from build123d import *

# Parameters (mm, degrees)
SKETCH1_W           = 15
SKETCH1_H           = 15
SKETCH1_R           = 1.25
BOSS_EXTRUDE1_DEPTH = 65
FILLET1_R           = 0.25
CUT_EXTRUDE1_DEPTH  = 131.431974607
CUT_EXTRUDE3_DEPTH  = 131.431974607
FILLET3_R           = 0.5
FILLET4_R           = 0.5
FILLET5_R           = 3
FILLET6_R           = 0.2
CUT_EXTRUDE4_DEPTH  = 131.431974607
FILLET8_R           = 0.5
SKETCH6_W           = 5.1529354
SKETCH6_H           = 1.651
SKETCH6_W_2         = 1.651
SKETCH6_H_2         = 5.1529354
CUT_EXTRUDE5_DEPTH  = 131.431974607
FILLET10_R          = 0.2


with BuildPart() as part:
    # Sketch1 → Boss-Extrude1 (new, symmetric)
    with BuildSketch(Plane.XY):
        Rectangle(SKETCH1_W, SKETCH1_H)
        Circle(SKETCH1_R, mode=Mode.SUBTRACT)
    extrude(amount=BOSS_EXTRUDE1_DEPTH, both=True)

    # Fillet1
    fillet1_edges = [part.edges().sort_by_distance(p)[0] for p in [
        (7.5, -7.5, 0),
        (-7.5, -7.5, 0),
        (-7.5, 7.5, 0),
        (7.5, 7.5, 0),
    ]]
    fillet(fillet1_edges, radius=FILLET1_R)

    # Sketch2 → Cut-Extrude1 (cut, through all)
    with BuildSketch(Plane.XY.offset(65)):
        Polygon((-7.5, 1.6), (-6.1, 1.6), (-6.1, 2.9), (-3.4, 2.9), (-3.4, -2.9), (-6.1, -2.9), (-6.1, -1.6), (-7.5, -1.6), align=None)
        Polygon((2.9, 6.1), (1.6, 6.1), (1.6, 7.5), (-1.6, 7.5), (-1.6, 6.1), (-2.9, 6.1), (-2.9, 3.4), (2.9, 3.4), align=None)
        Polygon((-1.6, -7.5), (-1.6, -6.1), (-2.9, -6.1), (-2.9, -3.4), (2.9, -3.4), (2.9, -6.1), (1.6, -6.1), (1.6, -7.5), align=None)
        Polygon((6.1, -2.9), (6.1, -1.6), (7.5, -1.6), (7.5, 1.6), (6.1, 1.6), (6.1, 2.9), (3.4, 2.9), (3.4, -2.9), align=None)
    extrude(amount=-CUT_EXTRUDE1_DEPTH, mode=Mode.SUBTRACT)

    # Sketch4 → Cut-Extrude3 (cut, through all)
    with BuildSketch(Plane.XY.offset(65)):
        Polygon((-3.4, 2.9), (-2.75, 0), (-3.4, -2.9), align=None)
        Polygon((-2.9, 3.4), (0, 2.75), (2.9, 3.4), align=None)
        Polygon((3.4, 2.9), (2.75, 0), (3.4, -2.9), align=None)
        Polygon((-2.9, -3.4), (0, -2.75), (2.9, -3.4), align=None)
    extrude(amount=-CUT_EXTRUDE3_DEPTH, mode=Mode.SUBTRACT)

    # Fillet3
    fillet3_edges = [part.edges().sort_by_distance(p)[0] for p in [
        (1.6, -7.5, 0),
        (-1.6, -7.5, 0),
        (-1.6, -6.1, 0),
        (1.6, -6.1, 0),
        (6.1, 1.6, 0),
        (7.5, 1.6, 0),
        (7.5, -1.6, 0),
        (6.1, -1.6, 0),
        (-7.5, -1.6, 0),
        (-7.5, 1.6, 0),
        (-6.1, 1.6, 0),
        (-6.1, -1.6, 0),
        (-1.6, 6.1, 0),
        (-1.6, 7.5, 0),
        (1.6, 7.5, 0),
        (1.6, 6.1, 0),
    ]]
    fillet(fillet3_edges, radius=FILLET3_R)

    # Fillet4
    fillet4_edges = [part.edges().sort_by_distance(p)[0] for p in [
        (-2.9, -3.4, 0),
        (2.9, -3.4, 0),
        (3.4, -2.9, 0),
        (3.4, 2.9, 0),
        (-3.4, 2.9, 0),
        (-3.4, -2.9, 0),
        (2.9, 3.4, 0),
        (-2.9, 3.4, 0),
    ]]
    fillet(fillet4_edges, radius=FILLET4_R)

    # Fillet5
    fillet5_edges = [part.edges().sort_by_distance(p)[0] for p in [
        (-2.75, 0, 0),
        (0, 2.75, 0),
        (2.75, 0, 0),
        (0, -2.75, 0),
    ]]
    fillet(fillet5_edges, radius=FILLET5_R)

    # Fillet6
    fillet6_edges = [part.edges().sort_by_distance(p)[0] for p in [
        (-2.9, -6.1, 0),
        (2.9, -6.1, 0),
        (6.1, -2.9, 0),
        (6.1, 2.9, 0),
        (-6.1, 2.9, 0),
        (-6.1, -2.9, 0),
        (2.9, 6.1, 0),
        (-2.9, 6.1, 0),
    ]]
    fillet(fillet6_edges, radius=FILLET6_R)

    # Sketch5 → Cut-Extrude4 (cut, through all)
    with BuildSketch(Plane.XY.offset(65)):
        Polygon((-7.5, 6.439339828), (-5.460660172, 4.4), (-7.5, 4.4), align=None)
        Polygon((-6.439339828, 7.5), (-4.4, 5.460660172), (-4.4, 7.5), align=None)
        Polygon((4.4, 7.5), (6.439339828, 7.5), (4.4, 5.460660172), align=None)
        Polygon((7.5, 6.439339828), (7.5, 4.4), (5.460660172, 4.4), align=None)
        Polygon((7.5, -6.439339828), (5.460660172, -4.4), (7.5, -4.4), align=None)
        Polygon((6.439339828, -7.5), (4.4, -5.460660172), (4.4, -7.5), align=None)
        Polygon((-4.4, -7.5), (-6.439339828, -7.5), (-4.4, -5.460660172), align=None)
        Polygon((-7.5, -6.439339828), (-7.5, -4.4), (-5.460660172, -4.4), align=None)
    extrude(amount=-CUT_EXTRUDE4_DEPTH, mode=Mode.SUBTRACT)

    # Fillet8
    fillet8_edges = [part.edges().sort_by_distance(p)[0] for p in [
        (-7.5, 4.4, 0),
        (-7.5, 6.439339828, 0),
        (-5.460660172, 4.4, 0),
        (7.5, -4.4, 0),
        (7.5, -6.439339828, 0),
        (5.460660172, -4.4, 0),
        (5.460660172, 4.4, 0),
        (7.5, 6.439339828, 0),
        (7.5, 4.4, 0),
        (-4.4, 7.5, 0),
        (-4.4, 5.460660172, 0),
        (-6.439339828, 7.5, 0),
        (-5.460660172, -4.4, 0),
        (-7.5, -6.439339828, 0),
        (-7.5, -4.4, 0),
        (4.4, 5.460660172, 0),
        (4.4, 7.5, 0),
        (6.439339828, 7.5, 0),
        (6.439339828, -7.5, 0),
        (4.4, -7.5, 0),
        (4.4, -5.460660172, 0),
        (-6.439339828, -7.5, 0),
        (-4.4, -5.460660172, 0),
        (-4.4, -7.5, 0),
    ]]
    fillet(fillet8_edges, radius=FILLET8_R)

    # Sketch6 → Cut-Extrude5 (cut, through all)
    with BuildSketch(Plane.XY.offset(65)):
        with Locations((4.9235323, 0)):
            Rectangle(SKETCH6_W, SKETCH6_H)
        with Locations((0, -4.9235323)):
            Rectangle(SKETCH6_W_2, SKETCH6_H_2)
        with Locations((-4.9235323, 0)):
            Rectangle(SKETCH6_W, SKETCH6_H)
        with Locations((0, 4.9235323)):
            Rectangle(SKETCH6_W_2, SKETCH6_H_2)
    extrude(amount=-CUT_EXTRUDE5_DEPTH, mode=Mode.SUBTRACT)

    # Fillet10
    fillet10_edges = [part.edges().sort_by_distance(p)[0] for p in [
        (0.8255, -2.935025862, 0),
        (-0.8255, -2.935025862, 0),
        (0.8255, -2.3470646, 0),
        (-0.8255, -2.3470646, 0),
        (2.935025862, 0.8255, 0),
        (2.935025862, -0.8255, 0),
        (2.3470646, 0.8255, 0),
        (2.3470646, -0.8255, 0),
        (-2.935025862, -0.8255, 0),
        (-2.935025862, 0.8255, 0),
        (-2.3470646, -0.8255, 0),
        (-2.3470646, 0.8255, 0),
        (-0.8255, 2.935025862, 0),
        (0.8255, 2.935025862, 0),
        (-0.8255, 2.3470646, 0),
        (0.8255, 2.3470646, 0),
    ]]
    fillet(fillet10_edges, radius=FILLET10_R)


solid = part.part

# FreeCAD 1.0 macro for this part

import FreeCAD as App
import Part
import Sketcher


def edges_at(feature, points):
    """Names of the edges that pass closest to the given points."""
    edges = feature.Shape.Edges
    near = lambda p: min(range(len(edges)), key=lambda i: edges[i].distToShape(Part.Vertex(*p))[0])
    return sorted({f"Edge{near(p) + 1}" for p in points})


def add_polygon(sketch, points):
    """Adds a closed chain of lines whose ends are joined by coincident constraints."""
    first, n = sketch.GeometryCount, len(points)
    for a, b in zip(points, points[1:] + points[:1]):
        sketch.addGeometry(Part.LineSegment(App.Vector(*a, 0), App.Vector(*b, 0)), False)
    for i in range(n):
        sketch.addConstraint(Sketcher.Constraint("Coincident", first + i, 2, first + (i + 1) % n, 1))

doc = App.newDocument("Part")
body = doc.addObject("PartDesign::Body", "Body")

# Sketch on XY plane
sketch1 = doc.addObject("Sketcher::SketchObject", "Sketch")
body.addObject(sketch1)
sketch1.AttachmentSupport = (doc.XY_Plane, [""])
sketch1.MapMode = "FlatFace"
add_polygon(sketch1, [(-7.5, 7.5), (-7.5, -7.5), (7.5, -7.5), (7.5, 7.5)])  # lines 0-3
sketch1.addGeometry(Part.Circle(App.Vector(0, 0, 0), App.Vector(0, 0, 1), 1.25), False)  # 4
sketch1.addConstraint(Sketcher.Constraint("Vertical", 0))
sketch1.addConstraint(Sketcher.Constraint("Horizontal", 1))
sketch1.addConstraint(Sketcher.Constraint("Vertical", 2))
sketch1.addConstraint(Sketcher.Constraint("Horizontal", 3))
sketch1.addConstraint(Sketcher.Constraint("Coincident", 4, 3, -1, 1))
sketch1.addConstraint(Sketcher.Constraint("Symmetric", 0, 2, 2, 2, -1, 1))
sketch1.addConstraint(Sketcher.Constraint("Equal", 3, 0))
sketch1.addConstraint(Sketcher.Constraint("Diameter", 4, 2.5))
sketch1.addConstraint(Sketcher.Constraint("DistanceX", 1, 1, 1, 2, 15.0))
pad1 = doc.addObject("PartDesign::Pad", "Pad")
body.addObject(pad1)
pad1.Profile = sketch1
pad1.Length = 130
pad1.Midplane = True
doc.recompute()

fillet = doc.addObject("PartDesign::Fillet", "Fillet")
body.addObject(fillet)
fillet.Base = (pad1, edges_at(pad1, [
    (7.5, -7.5, 0),
    (-7.5, -7.5, 0),
    (-7.5, 7.5, 0),
    (7.5, 7.5, 0),
]))
fillet.Radius = 0.25

# Sketch on XY plane
sketch2 = doc.addObject("Sketcher::SketchObject", "Sketch001")
body.addObject(sketch2)
sketch2.AttachmentSupport = (doc.XY_Plane, [""])
sketch2.MapMode = "FlatFace"
sketch2.AttachmentOffset = App.Placement(App.Vector(0, 0, 65), App.Rotation())
add_polygon(sketch2, [(-6.1, 1.6), (-7.5, 1.6), (-7.5, -1.6), (-6.1, -1.6), (-6.1, -2.9), (-3.4, -2.9), (-3.4, 2.9), (-6.1, 2.9)])  # lines 0-7
add_polygon(sketch2, [(2.9, 6.1), (1.6, 6.1), (1.6, 7.5), (-1.6, 7.5), (-1.6, 6.1), (-2.9, 6.1), (-2.9, 3.4), (2.9, 3.4)])  # lines 8-15
add_polygon(sketch2, [(-1.6, -6.1), (-1.6, -7.5), (1.6, -7.5), (1.6, -6.1), (2.9, -6.1), (2.9, -3.4), (-2.9, -3.4), (-2.9, -6.1)])  # lines 16-23
add_polygon(sketch2, [(6.1, -2.9), (6.1, -1.6), (7.5, -1.6), (7.5, 1.6), (6.1, 1.6), (6.1, 2.9), (3.4, 2.9), (3.4, -2.9)])  # lines 24-31
sketch2.addConstraint(Sketcher.Constraint("Horizontal", 0))
sketch2.addConstraint(Sketcher.Constraint("Vertical", 1))
sketch2.addConstraint(Sketcher.Constraint("Horizontal", 2))
sketch2.addConstraint(Sketcher.Constraint("Vertical", 3))
sketch2.addConstraint(Sketcher.Constraint("Horizontal", 4))
sketch2.addConstraint(Sketcher.Constraint("Vertical", 5))
sketch2.addConstraint(Sketcher.Constraint("Horizontal", 6))
sketch2.addConstraint(Sketcher.Constraint("Vertical", 7))
sketch2.addConstraint(Sketcher.Constraint("Horizontal", 8))
sketch2.addConstraint(Sketcher.Constraint("Vertical", 9))
sketch2.addConstraint(Sketcher.Constraint("Horizontal", 10))
sketch2.addConstraint(Sketcher.Constraint("Vertical", 11))
sketch2.addConstraint(Sketcher.Constraint("Horizontal", 12))
sketch2.addConstraint(Sketcher.Constraint("Vertical", 13))
sketch2.addConstraint(Sketcher.Constraint("Horizontal", 14))
sketch2.addConstraint(Sketcher.Constraint("Vertical", 15))
sketch2.addConstraint(Sketcher.Constraint("Vertical", 16))
sketch2.addConstraint(Sketcher.Constraint("Horizontal", 17))
sketch2.addConstraint(Sketcher.Constraint("Vertical", 18))
sketch2.addConstraint(Sketcher.Constraint("Horizontal", 19))
sketch2.addConstraint(Sketcher.Constraint("Vertical", 20))
sketch2.addConstraint(Sketcher.Constraint("Horizontal", 21))
sketch2.addConstraint(Sketcher.Constraint("Vertical", 22))
sketch2.addConstraint(Sketcher.Constraint("Horizontal", 23))
sketch2.addConstraint(Sketcher.Constraint("Vertical", 24))
sketch2.addConstraint(Sketcher.Constraint("Horizontal", 25))
sketch2.addConstraint(Sketcher.Constraint("Vertical", 26))
sketch2.addConstraint(Sketcher.Constraint("Horizontal", 27))
sketch2.addConstraint(Sketcher.Constraint("Vertical", 28))
sketch2.addConstraint(Sketcher.Constraint("Horizontal", 29))
sketch2.addConstraint(Sketcher.Constraint("Vertical", 30))
sketch2.addConstraint(Sketcher.Constraint("Horizontal", 31))
sketch2.addConstraint(Sketcher.Constraint("Symmetric", 9, 2, 16, 2, -1, 1))
sketch2.addConstraint(Sketcher.Constraint("Symmetric", 11, 2, 18, 2, -1, 1))
sketch2.addConstraint(Sketcher.Constraint("Symmetric", 13, 2, 20, 2, -1, 1))
sketch2.addConstraint(Sketcher.Constraint("Symmetric", 15, 2, 22, 2, -1, 1))
sketch2.addConstraint(Sketcher.Constraint("Symmetric", 7, 2, 24, 2, -1, 1))
sketch2.addConstraint(Sketcher.Constraint("Symmetric", 1, 2, 26, 2, -1, 1))
sketch2.addConstraint(Sketcher.Constraint("Symmetric", 3, 2, 28, 2, -1, 1))
sketch2.addConstraint(Sketcher.Constraint("Symmetric", 5, 2, 30, 2, -1, 1))
sketch2.addConstraint(Sketcher.Constraint("Symmetric", 8, 2, 11, 2, -2))
sketch2.addConstraint(Sketcher.Constraint("Symmetric", 2, 2, 24, 2, -2))
sketch2.addConstraint(Sketcher.Constraint("Horizontal", 6, 2, 28, 2))
sketch2.addConstraint(Sketcher.Constraint("Vertical", 15, 2, 19, 2))
sketch2.addConstraint(Sketcher.Constraint("Equal", 17, 1))
sketch2.addConstraint(Sketcher.Constraint("Equal", 23, 3))
sketch2.addConstraint(Sketcher.Constraint("Equal", 27, 9))
sketch2.addConstraint(Sketcher.Constraint("Equal", 31, 13))
sketch2.addConstraint(Sketcher.Constraint("DistanceX", 0, 2, 0, 1, 1.4))
sketch2.addConstraint(Sketcher.Constraint("DistanceX", 4, 1, 4, 2, 2.7))
sketch2.addConstraint(Sketcher.Constraint("DistanceX", 8, 2, 8, 1, 1.3))
sketch2.addConstraint(Sketcher.Constraint("DistanceX", 10, 2, 10, 1, 3.2))
sketch2.addConstraint(Sketcher.Constraint("DistanceX", 5, 2, 8, 2, 5.0))
sketch2.addConstraint(Sketcher.Constraint("DistanceY", 4, 2, 8, 2, 9.0))
pocket1 = doc.addObject("PartDesign::Pocket", "Pocket")
body.addObject(pocket1)
pocket1.Profile = sketch2
pocket1.Type = "ThroughAll"

# Sketch on XY plane
sketch3 = doc.addObject("Sketcher::SketchObject", "Sketch002")
body.addObject(sketch3)
sketch3.AttachmentSupport = (doc.XY_Plane, [""])
sketch3.MapMode = "FlatFace"
sketch3.AttachmentOffset = App.Placement(App.Vector(0, 0, 65), App.Rotation())
add_polygon(sketch3, [(-2.75, 0), (-3.4, 2.9), (-3.4, -2.9)])  # lines 0-2
add_polygon(sketch3, [(-2.9, 3.4), (0, 2.75), (2.9, 3.4)])  # lines 3-5
add_polygon(sketch3, [(3.4, 2.9), (2.75, 0), (3.4, -2.9)])  # lines 6-8
add_polygon(sketch3, [(0, -2.75), (-2.9, -3.4), (2.9, -3.4)])  # lines 9-11
sketch3.addConstraint(Sketcher.Constraint("Vertical", 1))
sketch3.addConstraint(Sketcher.Constraint("Horizontal", 5))
sketch3.addConstraint(Sketcher.Constraint("Vertical", 8))
sketch3.addConstraint(Sketcher.Constraint("Horizontal", 10))
sketch3.addConstraint(Sketcher.Constraint("Symmetric", 2, 2, 6, 2, -1, 1))
sketch3.addConstraint(Sketcher.Constraint("Symmetric", 0, 2, 7, 2, -1, 1))
sketch3.addConstraint(Sketcher.Constraint("Symmetric", 4, 2, 9, 2, -1, 1))
sketch3.addConstraint(Sketcher.Constraint("Symmetric", 3, 2, 11, 2, -1, 1))
sketch3.addConstraint(Sketcher.Constraint("PointOnObject", 2, 2, -1))
sketch3.addConstraint(Sketcher.Constraint("PointOnObject", 3, 2, -2))
sketch3.addConstraint(Sketcher.Constraint("Perpendicular", 2, 3))
sketch3.addConstraint(Sketcher.Constraint("Perpendicular", 0, 4))
sketch3.addConstraint(Sketcher.Constraint("Perpendicular", 3, 6))
sketch3.addConstraint(Sketcher.Constraint("Perpendicular", 6, 11))
sketch3.addConstraint(Sketcher.Constraint("Horizontal", 1, 2, 7, 2))
sketch3.addConstraint(Sketcher.Constraint("Equal", 10, 1))
sketch3.addConstraint(Sketcher.Constraint("DistanceX", 5, 2, 5, 1, 5.8))
sketch3.addConstraint(Sketcher.Constraint("DistanceX", 0, 2, -1, 1, 3.4))
sketch3.addConstraint(Sketcher.Constraint("DistanceY", -1, 1, 4, 2, 3.4))
sketch3.addConstraint(Sketcher.Constraint("DistanceX", 2, 2, 6, 2, 5.5))
pocket2 = doc.addObject("PartDesign::Pocket", "Pocket001")
body.addObject(pocket2)
pocket2.Profile = sketch3
pocket2.Type = "ThroughAll"
doc.recompute()

fillet2 = doc.addObject("PartDesign::Fillet", "Fillet001")
body.addObject(fillet2)
fillet2.Base = (pocket2, edges_at(pocket2, [
    (1.6, -7.5, 0),
    (-1.6, -7.5, 0),
    (-1.6, -6.1, 0),
    (1.6, -6.1, 0),
    (6.1, 1.6, 0),
    (7.5, 1.6, 0),
    (7.5, -1.6, 0),
    (6.1, -1.6, 0),
    (-7.5, -1.6, 0),
    (-7.5, 1.6, 0),
    (-6.1, 1.6, 0),
    (-6.1, -1.6, 0),
    (-1.6, 6.1, 0),
    (-1.6, 7.5, 0),
    (1.6, 7.5, 0),
    (1.6, 6.1, 0),
]))
fillet2.Radius = 0.5
doc.recompute()

fillet3 = doc.addObject("PartDesign::Fillet", "Fillet002")
body.addObject(fillet3)
fillet3.Base = (fillet2, edges_at(fillet2, [
    (-2.9, -3.4, 0),
    (2.9, -3.4, 0),
    (3.4, -2.9, 0),
    (3.4, 2.9, 0),
    (-3.4, 2.9, 0),
    (-3.4, -2.9, 0),
    (2.9, 3.4, 0),
    (-2.9, 3.4, 0),
]))
fillet3.Radius = 0.5
doc.recompute()

fillet4 = doc.addObject("PartDesign::Fillet", "Fillet003")
body.addObject(fillet4)
fillet4.Base = (fillet3, edges_at(fillet3, [
    (-2.75, 0, 0),
    (0, 2.75, 0),
    (2.75, 0, 0),
    (0, -2.75, 0),
]))
fillet4.Radius = 3
doc.recompute()

fillet5 = doc.addObject("PartDesign::Fillet", "Fillet004")
body.addObject(fillet5)
fillet5.Base = (fillet4, edges_at(fillet4, [
    (-2.9, -6.1, 0),
    (2.9, -6.1, 0),
    (6.1, -2.9, 0),
    (6.1, 2.9, 0),
    (-6.1, 2.9, 0),
    (-6.1, -2.9, 0),
    (2.9, 6.1, 0),
    (-2.9, 6.1, 0),
]))
fillet5.Radius = 0.2

# Sketch on XY plane
sketch4 = doc.addObject("Sketcher::SketchObject", "Sketch003")
body.addObject(sketch4)
sketch4.AttachmentSupport = (doc.XY_Plane, [""])
sketch4.MapMode = "FlatFace"
sketch4.AttachmentOffset = App.Placement(App.Vector(0, 0, 65), App.Rotation())
add_polygon(sketch4, [(-5.46066, 4.4), (-7.5, 6.43934), (-7.5, 4.4)])  # lines 0-2
add_polygon(sketch4, [(-6.43934, 7.5), (-4.4, 5.46066), (-4.4, 7.5)])  # lines 3-5
add_polygon(sketch4, [(6.43934, 7.5), (4.4, 7.5), (4.4, 5.46066)])  # lines 6-8
add_polygon(sketch4, [(7.5, 4.4), (7.5, 6.43934), (5.46066, 4.4)])  # lines 9-11
add_polygon(sketch4, [(5.46066, -4.4), (7.5, -6.43934), (7.5, -4.4)])  # lines 12-14
add_polygon(sketch4, [(6.43934, -7.5), (4.4, -5.46066), (4.4, -7.5)])  # lines 15-17
add_polygon(sketch4, [(-6.43934, -7.5), (-4.4, -7.5), (-4.4, -5.46066)])  # lines 18-20
add_polygon(sketch4, [(-7.5, -4.4), (-7.5, -6.43934), (-5.46066, -4.4)])  # lines 21-23
sketch4.addConstraint(Sketcher.Constraint("Vertical", 1))
sketch4.addConstraint(Sketcher.Constraint("Horizontal", 2))
sketch4.addConstraint(Sketcher.Constraint("Vertical", 4))
sketch4.addConstraint(Sketcher.Constraint("Horizontal", 5))
sketch4.addConstraint(Sketcher.Constraint("Horizontal", 6))
sketch4.addConstraint(Sketcher.Constraint("Vertical", 7))
sketch4.addConstraint(Sketcher.Constraint("Vertical", 9))
sketch4.addConstraint(Sketcher.Constraint("Horizontal", 11))
sketch4.addConstraint(Sketcher.Constraint("Vertical", 13))
sketch4.addConstraint(Sketcher.Constraint("Horizontal", 14))
sketch4.addConstraint(Sketcher.Constraint("Vertical", 16))
sketch4.addConstraint(Sketcher.Constraint("Horizontal", 17))
sketch4.addConstraint(Sketcher.Constraint("Horizontal", 18))
sketch4.addConstraint(Sketcher.Constraint("Vertical", 19))
sketch4.addConstraint(Sketcher.Constraint("Vertical", 21))
sketch4.addConstraint(Sketcher.Constraint("Horizontal", 23))
sketch4.addConstraint(Sketcher.Constraint("Symmetric", 0, 2, 12, 2, -1, 1))
sketch4.addConstraint(Sketcher.Constraint("Symmetric", 2, 2, 14, 2, -1, 1))
sketch4.addConstraint(Sketcher.Constraint("Symmetric", 3, 2, 15, 2, -1, 1))
sketch4.addConstraint(Sketcher.Constraint("Symmetric", 5, 2, 17, 2, -1, 1))
sketch4.addConstraint(Sketcher.Constraint("Symmetric", 6, 2, 18, 2, -1, 1))
sketch4.addConstraint(Sketcher.Constraint("Symmetric", 9, 2, 21, 2, -1, 1))
sketch4.addConstraint(Sketcher.Constraint("Symmetric", 10, 2, 22, 2, -1, 1))
sketch4.addConstraint(Sketcher.Constraint("Symmetric", 4, 2, 6, 2, -2))
sketch4.addConstraint(Sketcher.Constraint("Symmetric", 0, 2, 9, 2, -2))
sketch4.addConstraint(Sketcher.Constraint("Symmetric", 2, 2, 10, 2, -2))
sketch4.addConstraint(Sketcher.Constraint("Parallel", 0, 3))
sketch4.addConstraint(Sketcher.Constraint("Perpendicular", 3, 8))
sketch4.addConstraint(Sketcher.Constraint("Parallel", 8, 10))
sketch4.addConstraint(Sketcher.Constraint("Perpendicular", 15, 20))
sketch4.addConstraint(Sketcher.Constraint("Horizontal", 3, 2, 7, 2))
sketch4.addConstraint(Sketcher.Constraint("Horizontal", 15, 2, 19, 2))
sketch4.addConstraint(Sketcher.Constraint("Equal", 2, 5))
sketch4.addConstraint(Sketcher.Constraint("DistanceX", 0, 2, -1, 1, 7.5))
sketch4.addConstraint(Sketcher.Constraint("DistanceY", -1, 1, 1, 2, 4.4))
sketch4.addConstraint(Sketcher.Constraint("DistanceX", 3, 2, -1, 1, 4.4))
sketch4.addConstraint(Sketcher.Constraint("DistanceY", -1, 1, 4, 2, 7.5))
sketch4.addConstraint(Sketcher.Constraint("DistanceX", 2, 1, 2, 2, 2.03934))
pocket3 = doc.addObject("PartDesign::Pocket", "Pocket002")
body.addObject(pocket3)
pocket3.Profile = sketch4
pocket3.Type = "ThroughAll"
doc.recompute()

fillet6 = doc.addObject("PartDesign::Fillet", "Fillet005")
body.addObject(fillet6)
fillet6.Base = (pocket3, edges_at(pocket3, [
    (-7.5, 4.4, 0),
    (-7.5, 6.439, 0),
    (-5.461, 4.4, 0),
    (7.5, -4.4, 0),
    (7.5, -6.439, 0),
    (5.461, -4.4, 0),
    (5.461, 4.4, 0),
    (7.5, 6.439, 0),
    (7.5, 4.4, 0),
    (-4.4, 7.5, 0),
    (-4.4, 5.461, 0),
    (-6.439, 7.5, 0),
    (-5.461, -4.4, 0),
    (-7.5, -6.439, 0),
    (-7.5, -4.4, 0),
    (4.4, 5.461, 0),
    (4.4, 7.5, 0),
    (6.439, 7.5, 0),
    (6.439, -7.5, 0),
    (4.4, -7.5, 0),
    (4.4, -5.461, 0),
    (-6.439, -7.5, 0),
    (-4.4, -5.461, 0),
    (-4.4, -7.5, 0),
]))
fillet6.Radius = 0.5

# Sketch on XY plane
sketch5 = doc.addObject("Sketcher::SketchObject", "Sketch004")
body.addObject(sketch5)
sketch5.AttachmentSupport = (doc.XY_Plane, [""])
sketch5.MapMode = "FlatFace"
sketch5.AttachmentOffset = App.Placement(App.Vector(0, 0, 65), App.Rotation())
add_polygon(sketch5, [(2.347065, 0.8255), (2.347065, -0.8255), (7.5, -0.8255), (7.5, 0.8255)])  # lines 0-3
add_polygon(sketch5, [(-0.8255, -2.347065), (-0.8255, -7.5), (0.8255, -7.5), (0.8255, -2.347065)])  # lines 4-7
add_polygon(sketch5, [(-7.5, 0.8255), (-7.5, -0.8255), (-2.347065, -0.8255), (-2.347065, 0.8255)])  # lines 8-11
add_polygon(sketch5, [(-0.8255, 7.5), (-0.8255, 2.347065), (0.8255, 2.347065), (0.8255, 7.5)])  # lines 12-15
sketch5.addConstraint(Sketcher.Constraint("Vertical", 0))
sketch5.addConstraint(Sketcher.Constraint("Horizontal", 1))
sketch5.addConstraint(Sketcher.Constraint("Vertical", 2))
sketch5.addConstraint(Sketcher.Constraint("Horizontal", 3))
sketch5.addConstraint(Sketcher.Constraint("Vertical", 4))
sketch5.addConstraint(Sketcher.Constraint("Horizontal", 5))
sketch5.addConstraint(Sketcher.Constraint("Vertical", 6))
sketch5.addConstraint(Sketcher.Constraint("Horizontal", 7))
sketch5.addConstraint(Sketcher.Constraint("Vertical", 8))
sketch5.addConstraint(Sketcher.Constraint("Horizontal", 9))
sketch5.addConstraint(Sketcher.Constraint("Vertical", 10))
sketch5.addConstraint(Sketcher.Constraint("Horizontal", 11))
sketch5.addConstraint(Sketcher.Constraint("Vertical", 12))
sketch5.addConstraint(Sketcher.Constraint("Horizontal", 13))
sketch5.addConstraint(Sketcher.Constraint("Vertical", 14))
sketch5.addConstraint(Sketcher.Constraint("Horizontal", 15))
sketch5.addConstraint(Sketcher.Constraint("Symmetric", 2, 2, 8, 2, -1, 1))
sketch5.addConstraint(Sketcher.Constraint("Symmetric", 0, 2, 10, 2, -1, 1))
sketch5.addConstraint(Sketcher.Constraint("Symmetric", 6, 2, 12, 2, -1, 1))
sketch5.addConstraint(Sketcher.Constraint("Symmetric", 4, 2, 14, 2, -1, 1))
sketch5.addConstraint(Sketcher.Constraint("Horizontal", 1, 2, 8, 2))
sketch5.addConstraint(Sketcher.Constraint("Vertical", 7, 2, 12, 2))
sketch5.addConstraint(Sketcher.Constraint("Equal", 15, 0))
sketch5.addConstraint(Sketcher.Constraint("Equal", 11, 4))
sketch5.addConstraint(Sketcher.Constraint("DistanceX", -1, 1, 1, 2, 7.5))
sketch5.addConstraint(Sketcher.Constraint("DistanceY", 4, 2, -1, 1, 7.5))
sketch5.addConstraint(Sketcher.Constraint("DistanceX", 5, 1, 5, 2, 1.651))
sketch5.addConstraint(Sketcher.Constraint("DistanceX", 1, 1, 1, 2, 5.152935))
pocket4 = doc.addObject("PartDesign::Pocket", "Pocket003")
body.addObject(pocket4)
pocket4.Profile = sketch5
pocket4.Type = "ThroughAll"
doc.recompute()

fillet7 = doc.addObject("PartDesign::Fillet", "Fillet006")
body.addObject(fillet7)
fillet7.Base = (pocket4, edges_at(pocket4, [
    (0.826, -2.935, 0),
    (-0.826, -2.935, 0),
    (0.826, -2.347, 0),
    (-0.826, -2.347, 0),
    (2.935, 0.826, 0),
    (2.935, -0.826, 0),
    (2.347, 0.826, 0),
    (2.347, -0.826, 0),
    (-2.935, -0.826, 0),
    (-2.935, 0.826, 0),
    (-2.347, -0.826, 0),
    (-2.347, 0.826, 0),
    (-0.826, 2.935, 0),
    (0.826, 2.935, 0),
    (-0.826, 2.347, 0),
    (0.826, 2.347, 0),
]))
fillet7.Radius = 0.2

doc.recompute()
